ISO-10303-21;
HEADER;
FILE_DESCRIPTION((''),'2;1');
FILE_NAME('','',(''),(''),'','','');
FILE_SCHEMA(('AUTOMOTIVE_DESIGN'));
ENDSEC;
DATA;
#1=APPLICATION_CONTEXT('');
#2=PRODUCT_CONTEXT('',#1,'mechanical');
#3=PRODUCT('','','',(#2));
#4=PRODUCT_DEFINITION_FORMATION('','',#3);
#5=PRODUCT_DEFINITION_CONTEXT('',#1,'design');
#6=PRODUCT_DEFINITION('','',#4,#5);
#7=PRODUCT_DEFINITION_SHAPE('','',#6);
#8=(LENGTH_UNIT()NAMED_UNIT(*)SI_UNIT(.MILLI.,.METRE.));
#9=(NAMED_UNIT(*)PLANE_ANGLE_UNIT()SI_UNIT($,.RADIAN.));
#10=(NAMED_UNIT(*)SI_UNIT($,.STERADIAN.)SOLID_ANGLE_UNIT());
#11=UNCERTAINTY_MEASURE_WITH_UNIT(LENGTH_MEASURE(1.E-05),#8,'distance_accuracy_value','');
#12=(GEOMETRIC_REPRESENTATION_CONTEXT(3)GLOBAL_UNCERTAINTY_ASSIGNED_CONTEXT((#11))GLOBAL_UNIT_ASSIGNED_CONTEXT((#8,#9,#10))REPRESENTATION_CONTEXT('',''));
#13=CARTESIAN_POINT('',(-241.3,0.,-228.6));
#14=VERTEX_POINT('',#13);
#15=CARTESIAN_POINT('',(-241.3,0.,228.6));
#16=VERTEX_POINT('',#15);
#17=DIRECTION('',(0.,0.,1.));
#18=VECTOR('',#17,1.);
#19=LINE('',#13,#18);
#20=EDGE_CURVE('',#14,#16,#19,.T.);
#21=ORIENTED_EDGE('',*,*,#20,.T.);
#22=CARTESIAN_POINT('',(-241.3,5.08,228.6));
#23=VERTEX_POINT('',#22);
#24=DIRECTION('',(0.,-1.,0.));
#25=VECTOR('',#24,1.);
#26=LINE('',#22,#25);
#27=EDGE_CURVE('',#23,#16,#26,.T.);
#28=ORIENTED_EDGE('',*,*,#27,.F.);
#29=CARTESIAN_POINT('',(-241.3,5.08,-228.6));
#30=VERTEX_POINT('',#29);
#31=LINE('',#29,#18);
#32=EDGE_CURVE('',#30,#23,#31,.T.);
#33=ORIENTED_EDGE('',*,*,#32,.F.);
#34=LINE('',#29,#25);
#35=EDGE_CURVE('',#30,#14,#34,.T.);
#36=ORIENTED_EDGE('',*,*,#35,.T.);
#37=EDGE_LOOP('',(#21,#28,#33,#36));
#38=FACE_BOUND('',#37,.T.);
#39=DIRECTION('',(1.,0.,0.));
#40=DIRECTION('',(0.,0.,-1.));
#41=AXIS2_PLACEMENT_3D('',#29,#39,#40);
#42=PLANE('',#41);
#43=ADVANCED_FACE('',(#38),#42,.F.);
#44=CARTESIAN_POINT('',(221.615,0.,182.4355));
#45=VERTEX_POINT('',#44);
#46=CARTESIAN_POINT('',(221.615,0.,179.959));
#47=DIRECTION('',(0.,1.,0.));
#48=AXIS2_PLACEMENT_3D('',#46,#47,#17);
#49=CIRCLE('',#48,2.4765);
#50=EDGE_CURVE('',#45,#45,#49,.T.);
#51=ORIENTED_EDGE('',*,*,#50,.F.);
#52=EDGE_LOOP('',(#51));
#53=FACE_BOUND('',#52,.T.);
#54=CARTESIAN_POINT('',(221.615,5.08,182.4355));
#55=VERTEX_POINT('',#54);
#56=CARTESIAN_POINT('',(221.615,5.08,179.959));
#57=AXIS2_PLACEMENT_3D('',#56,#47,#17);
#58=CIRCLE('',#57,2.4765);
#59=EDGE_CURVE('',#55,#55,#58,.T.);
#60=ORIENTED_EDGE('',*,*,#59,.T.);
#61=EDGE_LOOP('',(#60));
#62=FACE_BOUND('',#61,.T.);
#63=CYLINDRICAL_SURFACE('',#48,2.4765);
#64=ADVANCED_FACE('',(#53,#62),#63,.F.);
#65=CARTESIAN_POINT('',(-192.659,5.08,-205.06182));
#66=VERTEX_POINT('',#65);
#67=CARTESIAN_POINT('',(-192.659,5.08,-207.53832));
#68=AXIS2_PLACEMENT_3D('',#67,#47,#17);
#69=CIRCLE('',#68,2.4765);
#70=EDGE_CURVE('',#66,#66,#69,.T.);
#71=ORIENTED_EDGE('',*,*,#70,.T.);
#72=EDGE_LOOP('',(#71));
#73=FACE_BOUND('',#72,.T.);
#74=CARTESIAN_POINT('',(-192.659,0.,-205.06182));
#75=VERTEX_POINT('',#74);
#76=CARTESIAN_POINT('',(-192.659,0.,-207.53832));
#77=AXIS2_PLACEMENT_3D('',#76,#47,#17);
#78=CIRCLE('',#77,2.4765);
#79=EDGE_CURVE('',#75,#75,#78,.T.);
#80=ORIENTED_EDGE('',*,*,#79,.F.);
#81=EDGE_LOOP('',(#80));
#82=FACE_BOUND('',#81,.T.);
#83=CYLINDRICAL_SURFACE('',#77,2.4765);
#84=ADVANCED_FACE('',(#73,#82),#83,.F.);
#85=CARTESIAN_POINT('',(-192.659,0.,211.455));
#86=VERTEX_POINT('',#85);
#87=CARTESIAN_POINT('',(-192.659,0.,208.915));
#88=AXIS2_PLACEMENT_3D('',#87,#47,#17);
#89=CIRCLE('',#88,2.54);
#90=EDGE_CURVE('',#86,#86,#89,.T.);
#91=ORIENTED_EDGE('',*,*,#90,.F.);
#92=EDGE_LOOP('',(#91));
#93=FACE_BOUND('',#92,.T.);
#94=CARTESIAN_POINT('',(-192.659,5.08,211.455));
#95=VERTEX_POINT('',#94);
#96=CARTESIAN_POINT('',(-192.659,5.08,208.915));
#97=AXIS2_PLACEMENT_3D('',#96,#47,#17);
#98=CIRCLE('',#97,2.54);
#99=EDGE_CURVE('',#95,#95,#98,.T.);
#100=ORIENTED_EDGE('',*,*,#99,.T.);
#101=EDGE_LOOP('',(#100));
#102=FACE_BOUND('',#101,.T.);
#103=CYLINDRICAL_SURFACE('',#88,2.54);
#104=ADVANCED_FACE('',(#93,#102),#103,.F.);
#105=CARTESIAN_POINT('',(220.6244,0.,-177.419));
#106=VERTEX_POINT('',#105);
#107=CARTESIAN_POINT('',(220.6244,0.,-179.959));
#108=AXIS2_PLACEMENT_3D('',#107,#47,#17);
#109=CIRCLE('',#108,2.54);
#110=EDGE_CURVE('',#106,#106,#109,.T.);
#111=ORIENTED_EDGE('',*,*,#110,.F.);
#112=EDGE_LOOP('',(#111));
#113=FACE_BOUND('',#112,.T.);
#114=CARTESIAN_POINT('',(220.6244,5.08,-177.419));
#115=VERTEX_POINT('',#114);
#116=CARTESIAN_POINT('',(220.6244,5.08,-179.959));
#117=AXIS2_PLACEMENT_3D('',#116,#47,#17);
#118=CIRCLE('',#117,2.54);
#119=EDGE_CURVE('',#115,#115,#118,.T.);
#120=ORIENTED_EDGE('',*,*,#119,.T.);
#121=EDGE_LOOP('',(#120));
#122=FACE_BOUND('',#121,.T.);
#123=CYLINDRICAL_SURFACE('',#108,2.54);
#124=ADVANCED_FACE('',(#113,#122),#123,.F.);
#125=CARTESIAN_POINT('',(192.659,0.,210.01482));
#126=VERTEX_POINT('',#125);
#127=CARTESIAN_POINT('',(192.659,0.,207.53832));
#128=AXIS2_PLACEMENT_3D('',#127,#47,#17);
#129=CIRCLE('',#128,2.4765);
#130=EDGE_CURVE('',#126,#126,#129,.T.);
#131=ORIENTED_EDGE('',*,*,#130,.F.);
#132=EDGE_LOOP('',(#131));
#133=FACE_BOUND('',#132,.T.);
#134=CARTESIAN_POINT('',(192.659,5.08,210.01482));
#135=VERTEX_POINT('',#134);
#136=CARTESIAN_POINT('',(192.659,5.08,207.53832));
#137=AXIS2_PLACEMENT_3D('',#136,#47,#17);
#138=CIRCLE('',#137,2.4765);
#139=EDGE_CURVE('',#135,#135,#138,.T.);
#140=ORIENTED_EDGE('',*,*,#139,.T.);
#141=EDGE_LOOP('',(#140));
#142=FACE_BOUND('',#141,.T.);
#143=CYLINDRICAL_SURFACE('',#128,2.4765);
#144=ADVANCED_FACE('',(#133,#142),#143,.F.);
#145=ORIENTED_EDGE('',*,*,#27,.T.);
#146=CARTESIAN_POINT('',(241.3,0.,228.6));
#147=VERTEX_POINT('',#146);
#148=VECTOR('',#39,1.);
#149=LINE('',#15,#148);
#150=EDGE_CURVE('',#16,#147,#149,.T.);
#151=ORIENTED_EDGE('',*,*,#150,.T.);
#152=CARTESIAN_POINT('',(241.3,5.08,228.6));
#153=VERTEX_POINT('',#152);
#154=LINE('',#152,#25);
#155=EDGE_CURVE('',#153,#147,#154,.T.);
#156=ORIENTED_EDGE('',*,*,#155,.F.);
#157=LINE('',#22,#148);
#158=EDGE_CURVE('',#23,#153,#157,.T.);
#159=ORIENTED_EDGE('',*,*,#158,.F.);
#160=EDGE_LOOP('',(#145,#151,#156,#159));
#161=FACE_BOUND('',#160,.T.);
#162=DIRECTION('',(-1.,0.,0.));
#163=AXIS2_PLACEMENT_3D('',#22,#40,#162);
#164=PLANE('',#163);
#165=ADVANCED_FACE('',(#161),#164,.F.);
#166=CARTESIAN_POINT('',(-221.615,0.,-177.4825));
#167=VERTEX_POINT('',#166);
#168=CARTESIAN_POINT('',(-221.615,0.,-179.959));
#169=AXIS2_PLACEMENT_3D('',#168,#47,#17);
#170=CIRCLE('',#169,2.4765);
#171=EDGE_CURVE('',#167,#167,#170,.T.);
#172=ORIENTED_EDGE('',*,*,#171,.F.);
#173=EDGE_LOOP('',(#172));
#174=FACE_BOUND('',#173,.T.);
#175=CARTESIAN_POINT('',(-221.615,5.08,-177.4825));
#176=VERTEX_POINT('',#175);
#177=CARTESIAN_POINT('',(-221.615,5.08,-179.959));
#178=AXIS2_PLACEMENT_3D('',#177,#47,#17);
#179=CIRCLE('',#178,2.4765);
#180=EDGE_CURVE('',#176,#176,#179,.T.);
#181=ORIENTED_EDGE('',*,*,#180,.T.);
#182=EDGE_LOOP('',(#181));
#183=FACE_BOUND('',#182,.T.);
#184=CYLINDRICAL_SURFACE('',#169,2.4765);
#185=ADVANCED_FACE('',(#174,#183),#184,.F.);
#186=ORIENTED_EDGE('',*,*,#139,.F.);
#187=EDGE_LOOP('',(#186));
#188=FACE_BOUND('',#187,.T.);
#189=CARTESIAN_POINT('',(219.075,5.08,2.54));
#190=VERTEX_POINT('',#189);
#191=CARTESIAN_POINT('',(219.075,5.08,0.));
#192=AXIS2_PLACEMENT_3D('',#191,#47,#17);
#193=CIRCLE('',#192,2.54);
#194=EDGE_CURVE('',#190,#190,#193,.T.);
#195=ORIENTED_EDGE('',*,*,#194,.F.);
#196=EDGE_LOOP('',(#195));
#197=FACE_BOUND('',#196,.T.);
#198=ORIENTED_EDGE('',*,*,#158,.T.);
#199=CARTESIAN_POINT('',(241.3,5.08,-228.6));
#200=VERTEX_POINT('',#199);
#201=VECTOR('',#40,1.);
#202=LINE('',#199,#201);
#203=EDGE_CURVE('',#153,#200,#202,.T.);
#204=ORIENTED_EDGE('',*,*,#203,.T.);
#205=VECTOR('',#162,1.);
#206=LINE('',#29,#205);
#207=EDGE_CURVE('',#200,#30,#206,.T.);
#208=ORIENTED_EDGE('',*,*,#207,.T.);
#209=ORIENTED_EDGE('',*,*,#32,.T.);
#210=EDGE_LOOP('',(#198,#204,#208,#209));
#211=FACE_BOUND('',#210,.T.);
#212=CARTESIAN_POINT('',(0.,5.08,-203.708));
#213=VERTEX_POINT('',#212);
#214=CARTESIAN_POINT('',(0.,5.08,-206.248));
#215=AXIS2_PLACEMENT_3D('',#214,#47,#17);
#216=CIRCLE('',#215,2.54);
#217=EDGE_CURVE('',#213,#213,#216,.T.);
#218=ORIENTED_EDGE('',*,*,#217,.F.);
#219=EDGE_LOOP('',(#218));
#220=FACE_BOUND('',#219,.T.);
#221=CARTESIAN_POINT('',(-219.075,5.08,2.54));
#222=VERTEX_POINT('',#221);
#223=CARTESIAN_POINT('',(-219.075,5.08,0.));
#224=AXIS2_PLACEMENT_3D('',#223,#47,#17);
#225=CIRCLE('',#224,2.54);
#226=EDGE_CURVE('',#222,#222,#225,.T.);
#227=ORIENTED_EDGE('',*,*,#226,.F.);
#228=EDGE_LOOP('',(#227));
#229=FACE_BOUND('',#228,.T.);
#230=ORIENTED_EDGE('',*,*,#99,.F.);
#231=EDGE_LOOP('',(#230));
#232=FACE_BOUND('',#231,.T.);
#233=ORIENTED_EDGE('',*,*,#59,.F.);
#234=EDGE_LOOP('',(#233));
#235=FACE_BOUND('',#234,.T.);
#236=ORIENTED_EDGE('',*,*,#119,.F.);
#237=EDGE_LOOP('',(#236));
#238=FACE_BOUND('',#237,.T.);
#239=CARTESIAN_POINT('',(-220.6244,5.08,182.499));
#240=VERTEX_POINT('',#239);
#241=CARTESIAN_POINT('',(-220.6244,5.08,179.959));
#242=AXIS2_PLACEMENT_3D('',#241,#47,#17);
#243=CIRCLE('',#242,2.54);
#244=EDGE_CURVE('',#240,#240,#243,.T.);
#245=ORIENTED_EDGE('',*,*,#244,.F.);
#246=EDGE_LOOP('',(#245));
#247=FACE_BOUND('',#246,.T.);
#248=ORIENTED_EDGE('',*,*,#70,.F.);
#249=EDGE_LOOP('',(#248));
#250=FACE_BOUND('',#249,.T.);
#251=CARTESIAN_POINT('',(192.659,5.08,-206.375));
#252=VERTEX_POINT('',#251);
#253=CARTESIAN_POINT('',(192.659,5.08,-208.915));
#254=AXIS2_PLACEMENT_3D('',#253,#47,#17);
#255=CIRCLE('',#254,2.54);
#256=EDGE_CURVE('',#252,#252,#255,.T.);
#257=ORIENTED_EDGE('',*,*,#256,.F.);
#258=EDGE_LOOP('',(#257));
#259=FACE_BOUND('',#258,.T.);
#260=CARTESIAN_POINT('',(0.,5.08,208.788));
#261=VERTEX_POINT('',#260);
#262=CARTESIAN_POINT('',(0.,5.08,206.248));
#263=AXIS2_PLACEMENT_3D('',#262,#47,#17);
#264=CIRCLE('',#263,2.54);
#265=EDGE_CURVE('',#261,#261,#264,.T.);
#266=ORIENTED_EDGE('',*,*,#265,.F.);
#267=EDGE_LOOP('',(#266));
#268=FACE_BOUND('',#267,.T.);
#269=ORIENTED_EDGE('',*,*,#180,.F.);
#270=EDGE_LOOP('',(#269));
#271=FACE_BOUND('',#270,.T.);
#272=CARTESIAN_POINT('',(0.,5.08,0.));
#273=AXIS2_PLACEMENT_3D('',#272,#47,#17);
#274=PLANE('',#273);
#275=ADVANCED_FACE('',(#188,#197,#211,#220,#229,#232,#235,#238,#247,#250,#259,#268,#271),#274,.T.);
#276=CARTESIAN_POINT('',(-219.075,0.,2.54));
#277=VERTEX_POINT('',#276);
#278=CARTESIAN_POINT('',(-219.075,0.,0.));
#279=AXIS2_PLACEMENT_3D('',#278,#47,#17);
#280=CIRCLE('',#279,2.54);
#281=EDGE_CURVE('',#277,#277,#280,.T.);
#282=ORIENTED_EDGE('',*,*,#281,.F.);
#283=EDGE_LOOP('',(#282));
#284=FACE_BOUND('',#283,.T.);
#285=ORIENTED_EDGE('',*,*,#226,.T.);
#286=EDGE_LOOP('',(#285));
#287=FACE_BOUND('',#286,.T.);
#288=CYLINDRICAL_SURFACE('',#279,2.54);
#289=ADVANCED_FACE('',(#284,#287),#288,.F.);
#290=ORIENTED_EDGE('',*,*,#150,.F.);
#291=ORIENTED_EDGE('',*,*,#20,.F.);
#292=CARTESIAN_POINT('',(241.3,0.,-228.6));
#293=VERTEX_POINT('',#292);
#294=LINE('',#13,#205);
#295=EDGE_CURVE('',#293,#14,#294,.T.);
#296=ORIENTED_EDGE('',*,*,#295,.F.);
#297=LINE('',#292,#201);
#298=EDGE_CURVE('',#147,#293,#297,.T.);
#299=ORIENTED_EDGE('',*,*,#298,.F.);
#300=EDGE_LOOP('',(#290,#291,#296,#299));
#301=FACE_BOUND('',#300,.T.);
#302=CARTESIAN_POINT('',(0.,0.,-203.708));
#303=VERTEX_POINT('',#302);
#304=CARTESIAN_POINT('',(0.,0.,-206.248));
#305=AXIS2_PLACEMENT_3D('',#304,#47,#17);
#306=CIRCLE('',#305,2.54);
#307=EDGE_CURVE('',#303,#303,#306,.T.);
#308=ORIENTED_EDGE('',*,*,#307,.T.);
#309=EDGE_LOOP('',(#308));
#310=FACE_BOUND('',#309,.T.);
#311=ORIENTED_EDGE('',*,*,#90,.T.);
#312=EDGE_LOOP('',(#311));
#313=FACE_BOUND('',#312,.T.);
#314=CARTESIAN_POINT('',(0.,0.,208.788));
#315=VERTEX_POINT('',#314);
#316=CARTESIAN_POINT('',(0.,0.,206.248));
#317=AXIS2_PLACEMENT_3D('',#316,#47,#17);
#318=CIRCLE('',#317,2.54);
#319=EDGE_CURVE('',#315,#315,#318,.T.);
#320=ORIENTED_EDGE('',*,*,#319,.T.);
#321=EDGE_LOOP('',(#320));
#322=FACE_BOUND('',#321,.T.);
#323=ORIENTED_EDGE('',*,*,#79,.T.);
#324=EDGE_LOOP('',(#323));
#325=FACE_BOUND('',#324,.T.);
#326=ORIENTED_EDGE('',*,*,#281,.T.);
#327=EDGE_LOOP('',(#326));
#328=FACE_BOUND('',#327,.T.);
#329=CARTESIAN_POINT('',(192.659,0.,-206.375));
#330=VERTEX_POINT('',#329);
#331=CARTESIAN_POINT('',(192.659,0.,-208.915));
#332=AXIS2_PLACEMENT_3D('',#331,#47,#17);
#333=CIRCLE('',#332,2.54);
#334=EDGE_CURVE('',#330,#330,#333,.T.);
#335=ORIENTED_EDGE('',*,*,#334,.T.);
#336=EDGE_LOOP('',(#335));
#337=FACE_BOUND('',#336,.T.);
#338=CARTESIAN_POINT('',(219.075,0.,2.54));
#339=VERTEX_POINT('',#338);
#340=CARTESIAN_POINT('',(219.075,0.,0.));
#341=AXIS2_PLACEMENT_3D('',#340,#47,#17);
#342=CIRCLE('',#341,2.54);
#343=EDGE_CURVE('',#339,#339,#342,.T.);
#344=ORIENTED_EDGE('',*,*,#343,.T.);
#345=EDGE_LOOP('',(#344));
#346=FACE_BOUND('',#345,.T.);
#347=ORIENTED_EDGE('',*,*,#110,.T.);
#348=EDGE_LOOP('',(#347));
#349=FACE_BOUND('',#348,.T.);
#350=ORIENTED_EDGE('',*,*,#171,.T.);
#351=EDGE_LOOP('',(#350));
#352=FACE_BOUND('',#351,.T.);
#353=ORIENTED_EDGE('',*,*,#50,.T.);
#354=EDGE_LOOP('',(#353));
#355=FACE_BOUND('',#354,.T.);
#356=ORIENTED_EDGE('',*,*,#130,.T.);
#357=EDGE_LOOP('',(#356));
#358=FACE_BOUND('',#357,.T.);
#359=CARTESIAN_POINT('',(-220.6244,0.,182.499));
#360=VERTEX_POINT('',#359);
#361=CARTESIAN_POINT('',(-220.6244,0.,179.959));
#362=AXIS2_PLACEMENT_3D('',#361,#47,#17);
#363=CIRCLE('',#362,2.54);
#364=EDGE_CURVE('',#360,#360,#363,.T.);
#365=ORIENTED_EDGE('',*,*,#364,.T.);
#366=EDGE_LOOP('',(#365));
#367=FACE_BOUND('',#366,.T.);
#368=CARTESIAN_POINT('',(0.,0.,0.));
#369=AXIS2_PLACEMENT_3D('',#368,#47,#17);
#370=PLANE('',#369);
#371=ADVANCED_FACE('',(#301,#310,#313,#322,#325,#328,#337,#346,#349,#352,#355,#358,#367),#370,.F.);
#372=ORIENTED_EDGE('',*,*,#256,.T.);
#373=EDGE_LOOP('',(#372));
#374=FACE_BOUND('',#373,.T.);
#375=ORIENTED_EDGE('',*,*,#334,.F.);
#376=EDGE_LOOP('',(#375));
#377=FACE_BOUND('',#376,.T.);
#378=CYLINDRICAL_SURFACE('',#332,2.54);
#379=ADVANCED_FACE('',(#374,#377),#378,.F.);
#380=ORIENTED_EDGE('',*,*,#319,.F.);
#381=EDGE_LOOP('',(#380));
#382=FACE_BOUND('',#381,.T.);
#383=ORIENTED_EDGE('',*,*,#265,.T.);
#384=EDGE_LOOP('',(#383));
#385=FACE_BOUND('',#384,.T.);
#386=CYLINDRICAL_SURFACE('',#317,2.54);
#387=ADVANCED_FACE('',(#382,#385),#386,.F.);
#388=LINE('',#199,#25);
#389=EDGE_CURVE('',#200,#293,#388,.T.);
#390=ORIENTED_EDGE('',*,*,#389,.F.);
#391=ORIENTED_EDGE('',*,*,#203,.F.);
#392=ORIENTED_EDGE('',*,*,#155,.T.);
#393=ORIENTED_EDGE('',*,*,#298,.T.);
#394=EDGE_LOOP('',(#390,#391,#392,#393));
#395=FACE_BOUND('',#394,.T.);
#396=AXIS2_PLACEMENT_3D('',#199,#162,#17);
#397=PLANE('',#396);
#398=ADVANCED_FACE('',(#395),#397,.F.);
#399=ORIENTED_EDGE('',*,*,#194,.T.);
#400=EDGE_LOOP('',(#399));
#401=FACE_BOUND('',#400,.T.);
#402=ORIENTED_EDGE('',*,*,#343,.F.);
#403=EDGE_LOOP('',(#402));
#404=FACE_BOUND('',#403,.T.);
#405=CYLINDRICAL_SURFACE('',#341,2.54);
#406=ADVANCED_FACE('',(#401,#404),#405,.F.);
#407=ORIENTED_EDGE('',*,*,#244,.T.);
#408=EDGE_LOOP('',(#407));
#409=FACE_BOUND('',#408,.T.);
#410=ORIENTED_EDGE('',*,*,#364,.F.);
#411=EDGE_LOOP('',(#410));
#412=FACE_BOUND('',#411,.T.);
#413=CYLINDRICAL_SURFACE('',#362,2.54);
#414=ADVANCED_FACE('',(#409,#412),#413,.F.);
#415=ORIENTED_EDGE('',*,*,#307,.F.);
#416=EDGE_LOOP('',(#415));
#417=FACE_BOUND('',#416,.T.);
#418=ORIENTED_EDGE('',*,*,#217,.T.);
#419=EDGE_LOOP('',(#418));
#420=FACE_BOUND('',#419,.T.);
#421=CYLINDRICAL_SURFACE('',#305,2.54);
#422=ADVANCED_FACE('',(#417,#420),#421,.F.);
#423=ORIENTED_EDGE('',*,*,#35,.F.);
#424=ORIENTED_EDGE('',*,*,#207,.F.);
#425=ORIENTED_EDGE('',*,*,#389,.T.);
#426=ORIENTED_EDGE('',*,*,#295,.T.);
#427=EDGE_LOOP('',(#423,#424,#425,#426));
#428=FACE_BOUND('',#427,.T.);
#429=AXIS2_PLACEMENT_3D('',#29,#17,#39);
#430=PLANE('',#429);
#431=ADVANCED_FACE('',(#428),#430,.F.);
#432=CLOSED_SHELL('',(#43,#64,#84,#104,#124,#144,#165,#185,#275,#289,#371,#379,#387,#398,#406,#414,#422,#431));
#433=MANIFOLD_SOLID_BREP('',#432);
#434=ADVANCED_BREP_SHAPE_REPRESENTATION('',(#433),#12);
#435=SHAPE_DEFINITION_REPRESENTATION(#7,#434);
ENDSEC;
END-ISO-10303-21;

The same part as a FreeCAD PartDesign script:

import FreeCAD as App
import Part
import Sketcher
Q = App.Units.Quantity

doc = App.newDocument("Part")
params = doc.addObject("Spreadsheet::Sheet", "Params")
for row, (alias, value) in enumerate([
    ("sketch1_width", "19 in"),
    ("sketch1_height", "18 in"),
    ("pad1_length", "0.2 in"),
    ("sketch2_diameter", "0.2 in"),
    ("sketch2_diameter2", "0.195 in"),
], start=1):
    params.set(f"A{row}", alias)
    params.set(f"B{row}", "=" + value)
    params.setAlias(f"B{row}", alias)

body = doc.addObject("PartDesign::Body", "Body")

sketch1 = body.newObject("Sketcher::SketchObject", "Sketch")
sketch1.AttachmentSupport = (doc.getObject("XZ_Plane"), [""])
sketch1.MapMode = "FlatFace"
sketch1.addGeometry([
    Part.LineSegment(App.Vector(-241.3, -228.6, 0), App.Vector(-241.3, 228.6, 0)),
    Part.LineSegment(App.Vector(-241.3, 228.6, 0), App.Vector(241.3, 228.6, 0)),
    Part.LineSegment(App.Vector(241.3, 228.6, 0), App.Vector(241.3, -228.6, 0)),
    Part.LineSegment(App.Vector(241.3, -228.6, 0), App.Vector(-241.3, -228.6, 0)),
], False)
sketch1.addConstraint([
    Sketcher.Constraint("Coincident", 0, 2, 1, 1),
    Sketcher.Constraint("Coincident", 1, 2, 2, 1),
    Sketcher.Constraint("Coincident", 2, 2, 3, 1),
    Sketcher.Constraint("Coincident", 3, 2, 0, 1),
    Sketcher.Constraint("Vertical", 0),
    Sketcher.Constraint("Horizontal", 1),
    Sketcher.Constraint("Vertical", 2),
    Sketcher.Constraint("Horizontal", 3),
    Sketcher.Constraint("Symmetric", 0, 2, 2, 2, -1, 1),
    Sketcher.Constraint("DistanceX", 1, 1, 1, 2, Q("19 in")),
    Sketcher.Constraint("DistanceY", 0, 1, 0, 2, Q("18 in")),
])
sketch1.setExpression("Constraints[9]", "Params.sketch1_width")
sketch1.setExpression("Constraints[10]", "Params.sketch1_height")
pad1 = body.newObject("PartDesign::Pad", "Pad")
pad1.Profile = sketch1
pad1.setExpression("Length", "Params.pad1_length")
pad1.Reversed = True

sketch2 = body.newObject("Sketcher::SketchObject", "Sketch001")
sketch2.AttachmentSupport = (doc.getObject("XZ_Plane"), [""])
sketch2.MapMode = "FlatFace"
sketch2.AttachmentOffset = App.Placement(App.Vector(0, 0, -0.2 * 25.4), App.Rotation())
sketch2.addGeometry([
    Part.Circle(App.Vector(-192.659, -207.53832, 0), App.Vector(0, 0, 1), 2.4765),
    Part.Circle(App.Vector(192.659, 207.53832, 0), App.Vector(0, 0, 1), 2.4765),
    Part.Circle(App.Vector(-221.615, -179.959, 0), App.Vector(0, 0, 1), 2.4765),
    Part.Circle(App.Vector(221.615, 179.959, 0), App.Vector(0, 0, 1), 2.4765),
    Part.Circle(App.Vector(220.6244, -179.959, 0), App.Vector(0, 0, 1), 2.54),
    Part.Circle(App.Vector(192.659, -208.915, 0), App.Vector(0, 0, 1), 2.54),
    Part.Circle(App.Vector(-192.659, 208.915, 0), App.Vector(0, 0, 1), 2.54),
    Part.Circle(App.Vector(-220.6244, 179.959, 0), App.Vector(0, 0, 1), 2.54),
    Part.Circle(App.Vector(-219.075, 0, 0), App.Vector(0, 0, 1), 2.54),
    Part.Circle(App.Vector(219.075, 0, 0), App.Vector(0, 0, 1), 2.54),
    Part.Circle(App.Vector(0, 206.248, 0), App.Vector(0, 0, 1), 2.54),
    Part.Circle(App.Vector(0, -206.248, 0), App.Vector(0, 0, 1), 2.54),
], False)
sketch2.addConstraint([
    Sketcher.Constraint("Equal", 0, 1),
    Sketcher.Constraint("Equal", 1, 2),
    Sketcher.Constraint("Equal", 2, 3),
    Sketcher.Constraint("Equal", 4, 5),
    Sketcher.Constraint("Equal", 5, 6),
    Sketcher.Constraint("Equal", 6, 7),
    Sketcher.Constraint("Equal", 7, 8),
    Sketcher.Constraint("Equal", 8, 9),
    Sketcher.Constraint("Equal", 9, 10),
    Sketcher.Constraint("Equal", 10, 11),
    Sketcher.Constraint("Symmetric", 0, 3, 1, 3, -1, 1),
    Sketcher.Constraint("Symmetric", 2, 3, 3, 3, -1, 1),
    Sketcher.Constraint("Symmetric", 5, 3, 6, 3, -1, 1),
    Sketcher.Constraint("Symmetric", 4, 3, 7, 3, -1, 1),
    Sketcher.Constraint("Symmetric", 8, 3, 9, 3, -1, 1),
    Sketcher.Constraint("Symmetric", 10, 3, 11, 3, -1, 1),
    Sketcher.Constraint("PointOnObject", 8, 3, -1),
    Sketcher.Constraint("PointOnObject", 10, 3, -2),
    Sketcher.Constraint("Horizontal", 2, 3, 4, 3),
    Sketcher.Constraint("Vertical", 1, 3, 5, 3),
    Sketcher.Constraint("Diameter", 4, Q("0.2 in")),
    Sketcher.Constraint("Diameter", 0, Q("0.195 in")),
    Sketcher.Constraint("DistanceX", 2, 3, 8, 3, Q("0.1 in")),
    Sketcher.Constraint("DistanceY", -1, 1, 10, 3, Q("8.12 in")),
    Sketcher.Constraint("DistanceX", 0, 3, 1, 3, Q("15.17 in")),
    Sketcher.Constraint("DistanceX", 2, 3, 0, 3, Q("1.14 in")),
    Sketcher.Constraint("DistanceY", 2, 3, 3, 3, Q("14.17 in")),
    Sketcher.Constraint("DistanceY", 5, 3, 4, 3, Q("1.14 in")),
    Sketcher.Constraint("DistanceX", -1, 1, 4, 3, Q("8.686 in")),
    Sketcher.Constraint("DistanceY", 0, 3, -1, 1, Q("8.1708 in")),
])
sketch2.setExpression("Constraints[20]", "Params.sketch2_diameter")
sketch2.setExpression("Constraints[21]", "Params.sketch2_diameter2")
pocket1 = body.newObject("PartDesign::Pocket", "Pocket")
pocket1.Profile = sketch2
pocket1.Type = "ThroughAll"
pocket1.Reversed = True

doc.recompute()
